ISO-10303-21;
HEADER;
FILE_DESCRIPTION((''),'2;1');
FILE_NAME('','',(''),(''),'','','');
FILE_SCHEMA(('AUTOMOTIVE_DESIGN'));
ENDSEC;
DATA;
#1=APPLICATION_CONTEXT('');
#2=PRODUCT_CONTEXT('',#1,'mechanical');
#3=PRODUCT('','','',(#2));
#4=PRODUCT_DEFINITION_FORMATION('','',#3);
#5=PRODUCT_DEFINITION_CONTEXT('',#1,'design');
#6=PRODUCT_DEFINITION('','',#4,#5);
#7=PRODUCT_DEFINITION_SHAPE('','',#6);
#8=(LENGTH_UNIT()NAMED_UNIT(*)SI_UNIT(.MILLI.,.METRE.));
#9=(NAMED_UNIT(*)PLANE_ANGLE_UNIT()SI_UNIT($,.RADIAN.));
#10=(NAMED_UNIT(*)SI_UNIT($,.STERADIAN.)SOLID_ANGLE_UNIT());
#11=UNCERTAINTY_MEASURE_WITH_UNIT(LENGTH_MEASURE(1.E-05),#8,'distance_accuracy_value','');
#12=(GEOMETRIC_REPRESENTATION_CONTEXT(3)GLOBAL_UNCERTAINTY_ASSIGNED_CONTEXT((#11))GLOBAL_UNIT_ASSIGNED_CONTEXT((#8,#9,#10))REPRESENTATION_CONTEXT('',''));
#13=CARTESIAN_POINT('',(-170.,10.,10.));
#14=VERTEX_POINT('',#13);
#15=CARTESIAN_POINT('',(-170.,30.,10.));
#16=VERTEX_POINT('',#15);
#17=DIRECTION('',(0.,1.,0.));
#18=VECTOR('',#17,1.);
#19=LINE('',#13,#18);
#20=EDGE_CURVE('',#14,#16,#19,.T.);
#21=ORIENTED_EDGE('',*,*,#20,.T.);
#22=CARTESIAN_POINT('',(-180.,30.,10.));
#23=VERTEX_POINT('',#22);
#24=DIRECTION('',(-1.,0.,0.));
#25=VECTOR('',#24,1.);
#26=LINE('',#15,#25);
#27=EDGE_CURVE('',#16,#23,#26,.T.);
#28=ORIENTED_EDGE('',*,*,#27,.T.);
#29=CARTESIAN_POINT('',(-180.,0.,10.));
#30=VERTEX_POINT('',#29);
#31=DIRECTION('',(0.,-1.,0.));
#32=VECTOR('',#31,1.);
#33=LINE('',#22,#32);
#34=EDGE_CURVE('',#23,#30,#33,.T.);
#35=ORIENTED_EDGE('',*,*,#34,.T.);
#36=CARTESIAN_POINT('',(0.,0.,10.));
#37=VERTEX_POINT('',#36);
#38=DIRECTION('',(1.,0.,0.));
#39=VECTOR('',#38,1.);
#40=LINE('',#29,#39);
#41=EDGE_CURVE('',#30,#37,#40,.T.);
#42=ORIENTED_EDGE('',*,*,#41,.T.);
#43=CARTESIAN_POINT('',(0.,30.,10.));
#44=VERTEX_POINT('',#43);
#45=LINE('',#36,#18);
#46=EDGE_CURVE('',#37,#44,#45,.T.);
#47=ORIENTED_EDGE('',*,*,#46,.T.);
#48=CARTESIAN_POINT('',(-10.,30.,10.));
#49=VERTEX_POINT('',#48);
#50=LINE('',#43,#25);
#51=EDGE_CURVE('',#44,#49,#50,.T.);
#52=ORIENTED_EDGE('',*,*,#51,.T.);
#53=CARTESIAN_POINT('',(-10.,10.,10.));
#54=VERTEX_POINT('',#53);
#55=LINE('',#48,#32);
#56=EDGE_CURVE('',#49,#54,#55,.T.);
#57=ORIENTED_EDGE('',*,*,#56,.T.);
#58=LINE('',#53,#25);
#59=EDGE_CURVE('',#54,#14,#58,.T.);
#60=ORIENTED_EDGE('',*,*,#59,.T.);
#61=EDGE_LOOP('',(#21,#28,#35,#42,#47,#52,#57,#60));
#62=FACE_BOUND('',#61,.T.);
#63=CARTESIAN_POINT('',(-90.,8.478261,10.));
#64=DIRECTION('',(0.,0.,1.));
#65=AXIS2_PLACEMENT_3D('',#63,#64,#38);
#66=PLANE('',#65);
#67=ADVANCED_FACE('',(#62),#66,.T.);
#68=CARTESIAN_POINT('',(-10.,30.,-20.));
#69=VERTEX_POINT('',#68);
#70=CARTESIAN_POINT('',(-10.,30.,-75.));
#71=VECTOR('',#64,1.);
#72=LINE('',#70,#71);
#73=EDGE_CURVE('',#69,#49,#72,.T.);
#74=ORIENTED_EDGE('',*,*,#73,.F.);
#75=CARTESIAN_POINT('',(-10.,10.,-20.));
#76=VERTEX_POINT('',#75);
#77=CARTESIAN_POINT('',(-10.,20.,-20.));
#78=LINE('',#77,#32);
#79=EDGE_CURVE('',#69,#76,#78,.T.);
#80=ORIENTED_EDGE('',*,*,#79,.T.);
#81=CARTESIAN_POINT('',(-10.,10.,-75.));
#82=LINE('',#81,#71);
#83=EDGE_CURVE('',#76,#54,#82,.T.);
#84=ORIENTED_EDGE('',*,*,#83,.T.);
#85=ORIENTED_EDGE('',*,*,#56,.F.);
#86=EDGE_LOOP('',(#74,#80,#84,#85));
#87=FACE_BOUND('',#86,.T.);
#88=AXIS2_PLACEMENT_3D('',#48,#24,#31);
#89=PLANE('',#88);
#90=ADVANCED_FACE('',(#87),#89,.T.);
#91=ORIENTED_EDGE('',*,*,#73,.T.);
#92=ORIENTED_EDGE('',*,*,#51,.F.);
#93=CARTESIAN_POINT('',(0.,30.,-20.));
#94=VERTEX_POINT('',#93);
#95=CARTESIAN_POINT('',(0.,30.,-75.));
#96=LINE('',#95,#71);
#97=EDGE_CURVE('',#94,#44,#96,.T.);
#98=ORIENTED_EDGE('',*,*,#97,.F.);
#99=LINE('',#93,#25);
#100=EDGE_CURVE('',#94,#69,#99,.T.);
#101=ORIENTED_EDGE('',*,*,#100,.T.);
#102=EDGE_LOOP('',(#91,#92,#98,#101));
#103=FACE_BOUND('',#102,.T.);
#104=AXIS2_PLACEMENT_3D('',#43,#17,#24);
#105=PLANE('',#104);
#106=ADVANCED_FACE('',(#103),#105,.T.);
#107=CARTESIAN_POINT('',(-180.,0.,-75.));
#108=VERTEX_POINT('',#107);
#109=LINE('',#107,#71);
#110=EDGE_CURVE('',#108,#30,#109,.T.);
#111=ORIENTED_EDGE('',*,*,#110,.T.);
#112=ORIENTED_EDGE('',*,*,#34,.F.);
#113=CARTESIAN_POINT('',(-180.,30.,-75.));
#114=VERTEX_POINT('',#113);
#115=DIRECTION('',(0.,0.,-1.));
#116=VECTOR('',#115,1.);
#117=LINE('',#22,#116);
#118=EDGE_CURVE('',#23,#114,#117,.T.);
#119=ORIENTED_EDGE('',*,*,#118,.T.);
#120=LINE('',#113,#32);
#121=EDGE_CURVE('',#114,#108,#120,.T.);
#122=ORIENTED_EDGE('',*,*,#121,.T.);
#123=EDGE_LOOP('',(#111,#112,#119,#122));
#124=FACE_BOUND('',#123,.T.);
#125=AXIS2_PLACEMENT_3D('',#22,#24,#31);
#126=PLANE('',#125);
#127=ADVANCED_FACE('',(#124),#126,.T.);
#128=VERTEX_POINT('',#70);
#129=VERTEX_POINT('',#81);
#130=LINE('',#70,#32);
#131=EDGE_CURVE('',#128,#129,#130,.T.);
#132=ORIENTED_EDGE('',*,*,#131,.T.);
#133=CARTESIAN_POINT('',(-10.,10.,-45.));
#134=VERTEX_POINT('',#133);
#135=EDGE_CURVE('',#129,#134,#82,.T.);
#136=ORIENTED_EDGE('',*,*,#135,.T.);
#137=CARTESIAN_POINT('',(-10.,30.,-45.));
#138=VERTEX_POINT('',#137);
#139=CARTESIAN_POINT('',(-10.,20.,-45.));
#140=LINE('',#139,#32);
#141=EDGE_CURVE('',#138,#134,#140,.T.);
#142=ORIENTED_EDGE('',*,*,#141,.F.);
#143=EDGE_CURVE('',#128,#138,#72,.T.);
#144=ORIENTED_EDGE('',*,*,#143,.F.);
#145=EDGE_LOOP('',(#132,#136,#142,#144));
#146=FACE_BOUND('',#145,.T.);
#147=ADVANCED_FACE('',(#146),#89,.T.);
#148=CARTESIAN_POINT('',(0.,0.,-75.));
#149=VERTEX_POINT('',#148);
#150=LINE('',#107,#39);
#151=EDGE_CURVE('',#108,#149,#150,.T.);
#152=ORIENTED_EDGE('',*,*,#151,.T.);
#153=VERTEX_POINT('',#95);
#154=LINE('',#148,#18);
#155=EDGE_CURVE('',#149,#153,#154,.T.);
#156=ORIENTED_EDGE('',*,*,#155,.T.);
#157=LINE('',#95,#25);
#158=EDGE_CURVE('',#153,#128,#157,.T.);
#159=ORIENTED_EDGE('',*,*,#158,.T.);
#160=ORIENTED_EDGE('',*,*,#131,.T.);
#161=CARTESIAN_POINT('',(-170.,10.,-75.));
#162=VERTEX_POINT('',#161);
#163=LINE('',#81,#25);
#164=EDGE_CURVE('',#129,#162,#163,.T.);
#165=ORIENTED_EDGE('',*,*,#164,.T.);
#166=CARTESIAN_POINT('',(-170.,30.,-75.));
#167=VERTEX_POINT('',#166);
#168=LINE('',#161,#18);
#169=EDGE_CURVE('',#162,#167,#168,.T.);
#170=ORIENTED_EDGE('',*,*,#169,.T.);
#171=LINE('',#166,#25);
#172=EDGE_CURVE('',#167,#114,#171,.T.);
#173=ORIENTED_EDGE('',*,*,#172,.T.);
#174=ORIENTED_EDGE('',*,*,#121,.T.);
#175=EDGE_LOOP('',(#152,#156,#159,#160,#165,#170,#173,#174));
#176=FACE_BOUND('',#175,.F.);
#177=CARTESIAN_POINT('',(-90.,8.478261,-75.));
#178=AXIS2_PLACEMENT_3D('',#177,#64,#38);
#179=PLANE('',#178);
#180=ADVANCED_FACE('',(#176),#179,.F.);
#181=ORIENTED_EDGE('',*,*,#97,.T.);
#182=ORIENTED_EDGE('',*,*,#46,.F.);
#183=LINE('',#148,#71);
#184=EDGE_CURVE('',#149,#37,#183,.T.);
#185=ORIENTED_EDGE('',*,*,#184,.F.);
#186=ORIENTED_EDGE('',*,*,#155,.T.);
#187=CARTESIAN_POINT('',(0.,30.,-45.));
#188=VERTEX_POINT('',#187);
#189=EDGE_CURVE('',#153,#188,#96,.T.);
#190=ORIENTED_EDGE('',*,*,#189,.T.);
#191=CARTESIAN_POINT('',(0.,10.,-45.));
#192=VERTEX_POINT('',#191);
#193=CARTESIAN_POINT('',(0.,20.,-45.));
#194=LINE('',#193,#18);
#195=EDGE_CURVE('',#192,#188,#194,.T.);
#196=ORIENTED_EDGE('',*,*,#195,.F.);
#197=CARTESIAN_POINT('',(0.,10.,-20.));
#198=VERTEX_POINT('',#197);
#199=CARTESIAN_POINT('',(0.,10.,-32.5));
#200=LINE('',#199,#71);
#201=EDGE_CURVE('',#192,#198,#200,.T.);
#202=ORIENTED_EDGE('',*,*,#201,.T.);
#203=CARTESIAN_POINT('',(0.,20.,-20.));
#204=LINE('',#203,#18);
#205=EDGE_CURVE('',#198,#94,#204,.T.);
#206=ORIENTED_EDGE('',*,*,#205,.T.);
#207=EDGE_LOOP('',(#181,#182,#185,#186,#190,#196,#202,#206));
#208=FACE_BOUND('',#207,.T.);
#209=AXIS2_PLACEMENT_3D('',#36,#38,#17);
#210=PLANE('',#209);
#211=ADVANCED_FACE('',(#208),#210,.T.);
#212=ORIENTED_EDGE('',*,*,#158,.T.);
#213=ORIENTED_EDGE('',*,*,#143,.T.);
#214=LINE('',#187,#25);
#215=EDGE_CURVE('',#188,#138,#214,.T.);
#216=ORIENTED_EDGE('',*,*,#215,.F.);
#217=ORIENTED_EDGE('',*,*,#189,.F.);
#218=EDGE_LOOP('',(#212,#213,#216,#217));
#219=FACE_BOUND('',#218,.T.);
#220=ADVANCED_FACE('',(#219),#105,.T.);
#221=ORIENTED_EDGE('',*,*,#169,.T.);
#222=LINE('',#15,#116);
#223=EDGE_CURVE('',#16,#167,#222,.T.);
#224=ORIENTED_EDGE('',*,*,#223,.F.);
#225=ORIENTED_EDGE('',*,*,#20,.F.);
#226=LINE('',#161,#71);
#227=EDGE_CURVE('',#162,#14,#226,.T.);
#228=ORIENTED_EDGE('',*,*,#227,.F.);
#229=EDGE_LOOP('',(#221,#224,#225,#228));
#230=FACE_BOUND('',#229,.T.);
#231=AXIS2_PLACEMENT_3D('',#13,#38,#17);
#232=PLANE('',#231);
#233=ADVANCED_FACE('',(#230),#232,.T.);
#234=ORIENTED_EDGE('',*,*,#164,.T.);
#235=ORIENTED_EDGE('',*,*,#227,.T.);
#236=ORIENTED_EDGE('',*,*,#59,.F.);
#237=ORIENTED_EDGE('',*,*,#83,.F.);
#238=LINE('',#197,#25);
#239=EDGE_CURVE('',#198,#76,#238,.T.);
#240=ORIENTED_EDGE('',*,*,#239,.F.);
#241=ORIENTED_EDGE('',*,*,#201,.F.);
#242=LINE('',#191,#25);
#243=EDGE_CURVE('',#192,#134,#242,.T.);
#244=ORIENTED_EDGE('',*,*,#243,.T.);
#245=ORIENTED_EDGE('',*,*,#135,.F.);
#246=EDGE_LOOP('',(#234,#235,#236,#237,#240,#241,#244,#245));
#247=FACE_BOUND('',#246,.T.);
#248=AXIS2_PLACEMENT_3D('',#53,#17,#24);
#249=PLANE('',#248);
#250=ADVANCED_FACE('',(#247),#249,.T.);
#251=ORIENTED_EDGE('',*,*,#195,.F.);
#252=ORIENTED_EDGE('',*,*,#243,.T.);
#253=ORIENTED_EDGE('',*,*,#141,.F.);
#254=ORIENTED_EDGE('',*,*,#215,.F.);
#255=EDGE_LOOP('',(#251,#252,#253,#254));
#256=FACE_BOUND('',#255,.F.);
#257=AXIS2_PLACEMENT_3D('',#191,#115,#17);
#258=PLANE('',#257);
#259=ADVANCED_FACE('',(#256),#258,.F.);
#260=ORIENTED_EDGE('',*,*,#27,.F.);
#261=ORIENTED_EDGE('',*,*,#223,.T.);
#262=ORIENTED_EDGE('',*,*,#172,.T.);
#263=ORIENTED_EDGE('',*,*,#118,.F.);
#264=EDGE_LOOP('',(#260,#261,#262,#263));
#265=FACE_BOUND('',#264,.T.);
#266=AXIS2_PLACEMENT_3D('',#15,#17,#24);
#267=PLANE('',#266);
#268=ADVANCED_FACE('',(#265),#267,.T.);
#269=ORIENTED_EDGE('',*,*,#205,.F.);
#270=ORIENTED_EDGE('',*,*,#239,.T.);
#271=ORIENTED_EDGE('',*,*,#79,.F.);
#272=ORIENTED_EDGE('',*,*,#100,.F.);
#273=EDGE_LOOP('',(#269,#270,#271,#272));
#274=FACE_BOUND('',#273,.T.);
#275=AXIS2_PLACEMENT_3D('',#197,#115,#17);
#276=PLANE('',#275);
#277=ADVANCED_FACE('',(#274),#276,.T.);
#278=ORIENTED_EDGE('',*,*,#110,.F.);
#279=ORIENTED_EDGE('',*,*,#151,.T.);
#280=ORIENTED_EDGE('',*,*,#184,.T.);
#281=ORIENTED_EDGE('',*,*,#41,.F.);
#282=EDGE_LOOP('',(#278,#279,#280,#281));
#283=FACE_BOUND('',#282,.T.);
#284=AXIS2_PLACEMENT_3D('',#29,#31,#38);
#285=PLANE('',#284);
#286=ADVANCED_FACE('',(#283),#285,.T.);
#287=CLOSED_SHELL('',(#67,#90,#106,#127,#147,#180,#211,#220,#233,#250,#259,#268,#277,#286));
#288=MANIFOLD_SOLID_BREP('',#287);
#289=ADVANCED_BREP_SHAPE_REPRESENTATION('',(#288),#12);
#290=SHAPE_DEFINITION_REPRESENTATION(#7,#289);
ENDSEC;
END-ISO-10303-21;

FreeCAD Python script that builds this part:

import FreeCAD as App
import Part
import Sketcher
Q = App.Units.Quantity

doc = App.newDocument("Part")
body = doc.addObject("PartDesign::Body", "Body")

# Sketch on XY plane
sketch1 = body.newObject("Sketcher::SketchObject", "Sketch")
sketch1.AttachmentSupport = (doc.getObject("XY_Plane"), [""])
sketch1.MapMode = "FlatFace"
sketch1.addGeometry(Part.LineSegment(App.Vector(-180, 30, 0), App.Vector(-180, 0, 0)), False)
sketch1.addGeometry(Part.LineSegment(App.Vector(-180, 0, 0), App.Vector(0, 0, 0)), False)
sketch1.addGeometry(Part.LineSegment(App.Vector(0, 0, 0), App.Vector(0, 30, 0)), False)
sketch1.addGeometry(Part.LineSegment(App.Vector(0, 30, 0), App.Vector(-10, 30, 0)), False)
sketch1.addGeometry(Part.LineSegment(App.Vector(-10, 30, 0), App.Vector(-10, 10, 0)), False)
sketch1.addGeometry(Part.LineSegment(App.Vector(-10, 10, 0), App.Vector(-170, 10, 0)), False)
sketch1.addGeometry(Part.LineSegment(App.Vector(-170, 10, 0), App.Vector(-170, 30, 0)), False)
sketch1.addGeometry(Part.LineSegment(App.Vector(-170, 30, 0), App.Vector(-180, 30, 0)), False)
sketch1.addConstraint(Sketcher.Constraint("Coincident", 0, 2, 1, 1))
sketch1.addConstraint(Sketcher.Constraint("Coincident", 1, 2, 2, 1))
sketch1.addConstraint(Sketcher.Constraint("Coincident", 2, 2, 3, 1))
sketch1.addConstraint(Sketcher.Constraint("Coincident", 3, 2, 4, 1))
sketch1.addConstraint(Sketcher.Constraint("Coincident", 4, 2, 5, 1))
sketch1.addConstraint(Sketcher.Constraint("Coincident", 5, 2, 6, 1))
sketch1.addConstraint(Sketcher.Constraint("Coincident", 6, 2, 7, 1))
sketch1.addConstraint(Sketcher.Constraint("Coincident", 7, 2, 0, 1))
sketch1.addConstraint(Sketcher.Constraint("Vertical", 0))
sketch1.addConstraint(Sketcher.Constraint("Horizontal", 1))
sketch1.addConstraint(Sketcher.Constraint("Vertical", 2))
sketch1.addConstraint(Sketcher.Constraint("Horizontal", 3))
sketch1.addConstraint(Sketcher.Constraint("Vertical", 4))
sketch1.addConstraint(Sketcher.Constraint("Horizontal", 5))
sketch1.addConstraint(Sketcher.Constraint("Vertical", 6))
sketch1.addConstraint(Sketcher.Constraint("Horizontal", 7))
sketch1.addConstraint(Sketcher.Constraint("Coincident", 1, 2, -1, 1))
sketch1.addConstraint(Sketcher.Constraint("Horizontal", 3, 2, 6, 2))
sketch1.addConstraint(Sketcher.Constraint("Equal", 3, 7))
sketch1.addConstraint(Sketcher.Constraint("DistanceX", 1, 1, 1, 2, Q("180 mm")))
sketch1.addConstraint(Sketcher.Constraint("DistanceX", 3, 2, 3, 1, Q("10 mm")))
sketch1.addConstraint(Sketcher.Constraint("DistanceY", 0, 2, 0, 1, Q("30 mm")))
sketch1.addConstraint(Sketcher.Constraint("DistanceY", 4, 2, 4, 1, Q("20 mm")))
pad1 = body.newObject("PartDesign::Pad", "Pad")
pad1.Profile = sketch1
pad1.Length = 10

# Sketch on XY plane
sketch2 = body.newObject("Sketcher::SketchObject", "Sketch001")
sketch2.AttachmentSupport = (doc.getObject("XY_Plane"), [""])
sketch2.MapMode = "FlatFace"
sketch2.AttachmentOffset = App.Placement(App.Vector(0, 0, 10), App.Rotation())
sketch2.addGeometry(Part.LineSegment(App.Vector(-180, 30, 0), App.Vector(-180, 0, 0)), False)
sketch2.addGeometry(Part.LineSegment(App.Vector(-180, 0, 0), App.Vector(0, 0, 0)), False)
sketch2.addGeometry(Part.LineSegment(App.Vector(0, 0, 0), App.Vector(0, 30, 0)), False)
sketch2.addGeometry(Part.LineSegment(App.Vector(0, 30, 0), App.Vector(-10, 30, 0)), False)
sketch2.addGeometry(Part.LineSegment(App.Vector(-10, 30, 0), App.Vector(-10, 10, 0)), False)
sketch2.addGeometry(Part.LineSegment(App.Vector(-10, 10, 0), App.Vector(-170, 10, 0)), False)
sketch2.addGeometry(Part.LineSegment(App.Vector(-170, 10, 0), App.Vector(-170, 30, 0)), False)
sketch2.addGeometry(Part.LineSegment(App.Vector(-170, 30, 0), App.Vector(-180, 30, 0)), False)
sketch2.addConstraint(Sketcher.Constraint("Coincident", 0, 2, 1, 1))
sketch2.addConstraint(Sketcher.Constraint("Coincident", 1, 2, 2, 1))
sketch2.addConstraint(Sketcher.Constraint("Coincident", 2, 2, 3, 1))
sketch2.addConstraint(Sketcher.Constraint("Coincident", 3, 2, 4, 1))
sketch2.addConstraint(Sketcher.Constraint("Coincident", 4, 2, 5, 1))
sketch2.addConstraint(Sketcher.Constraint("Coincident", 5, 2, 6, 1))
sketch2.addConstraint(Sketcher.Constraint("Coincident", 6, 2, 7, 1))
sketch2.addConstraint(Sketcher.Constraint("Coincident", 7, 2, 0, 1))
sketch2.addConstraint(Sketcher.Constraint("Vertical", 0))
sketch2.addConstraint(Sketcher.Constraint("Horizontal", 1))
sketch2.addConstraint(Sketcher.Constraint("Vertical", 2))
sketch2.addConstraint(Sketcher.Constraint("Horizontal", 3))
sketch2.addConstraint(Sketcher.Constraint("Vertical", 4))
sketch2.addConstraint(Sketcher.Constraint("Horizontal", 5))
sketch2.addConstraint(Sketcher.Constraint("Vertical", 6))
sketch2.addConstraint(Sketcher.Constraint("Horizontal", 7))
sketch2.addConstraint(Sketcher.Constraint("Coincident", 1, 2, -1, 1))
sketch2.addConstraint(Sketcher.Constraint("Horizontal", 3, 2, 6, 2))
sketch2.addConstraint(Sketcher.Constraint("Equal", 3, 7))
sketch2.addConstraint(Sketcher.Constraint("DistanceX", 1, 1, 1, 2, Q("180 mm")))
sketch2.addConstraint(Sketcher.Constraint("DistanceX", 3, 2, 3, 1, Q("10 mm")))
sketch2.addConstraint(Sketcher.Constraint("DistanceY", 0, 2, 0, 1, Q("30 mm")))
sketch2.addConstraint(Sketcher.Constraint("DistanceY", 4, 2, 4, 1, Q("20 mm")))
pad2 = body.newObject("PartDesign::Pad", "Pad001")
pad2.Profile = sketch2
pad2.Length = 85
pad2.Reversed = True

# Sketch on YZ plane
sketch3 = body.newObject("Sketcher::SketchObject", "Sketch002")
sketch3.AttachmentSupport = (doc.getObject("YZ_Plane"), [""])
sketch3.MapMode = "FlatFace"
sketch3.addGeometry(Part.LineSegment(App.Vector(10, -20, 0), App.Vector(10, -45, 0)), False)
sketch3.addGeometry(Part.LineSegment(App.Vector(10, -45, 0), App.Vector(30, -45, 0)), False)
sketch3.addGeometry(Part.LineSegment(App.Vector(30, -45, 0), App.Vector(30, -20, 0)), False)
sketch3.addGeometry(Part.LineSegment(App.Vector(30, -20, 0), App.Vector(10, -20, 0)), False)
sketch3.addConstraint(Sketcher.Constraint("Coincident", 0, 2, 1, 1))
sketch3.addConstraint(Sketcher.Constraint("Coincident", 1, 2, 2, 1))
sketch3.addConstraint(Sketcher.Constraint("Coincident", 2, 2, 3, 1))
sketch3.addConstraint(Sketcher.Constraint("Coincident", 3, 2, 0, 1))
sketch3.addConstraint(Sketcher.Constraint("Vertical", 0))
sketch3.addConstraint(Sketcher.Constraint("Horizontal", 1))
sketch3.addConstraint(Sketcher.Constraint("Vertical", 2))
sketch3.addConstraint(Sketcher.Constraint("Horizontal", 3))
sketch3.addConstraint(Sketcher.Constraint("DistanceX", 1, 1, 1, 2, Q("20 mm")))
sketch3.addConstraint(Sketcher.Constraint("DistanceY", 0, 2, 0, 1, Q("25 mm")))
sketch3.addConstraint(Sketcher.Constraint("DistanceX", -1, 1, 0, 2, Q("10 mm")))
sketch3.addConstraint(Sketcher.Constraint("DistanceY", 0, 2, -1, 1, Q("45 mm")))
pocket1 = body.newObject("PartDesign::Pocket", "Pocket")
pocket1.Profile = sketch3
pocket1.Length = 88.4

doc.recompute()
